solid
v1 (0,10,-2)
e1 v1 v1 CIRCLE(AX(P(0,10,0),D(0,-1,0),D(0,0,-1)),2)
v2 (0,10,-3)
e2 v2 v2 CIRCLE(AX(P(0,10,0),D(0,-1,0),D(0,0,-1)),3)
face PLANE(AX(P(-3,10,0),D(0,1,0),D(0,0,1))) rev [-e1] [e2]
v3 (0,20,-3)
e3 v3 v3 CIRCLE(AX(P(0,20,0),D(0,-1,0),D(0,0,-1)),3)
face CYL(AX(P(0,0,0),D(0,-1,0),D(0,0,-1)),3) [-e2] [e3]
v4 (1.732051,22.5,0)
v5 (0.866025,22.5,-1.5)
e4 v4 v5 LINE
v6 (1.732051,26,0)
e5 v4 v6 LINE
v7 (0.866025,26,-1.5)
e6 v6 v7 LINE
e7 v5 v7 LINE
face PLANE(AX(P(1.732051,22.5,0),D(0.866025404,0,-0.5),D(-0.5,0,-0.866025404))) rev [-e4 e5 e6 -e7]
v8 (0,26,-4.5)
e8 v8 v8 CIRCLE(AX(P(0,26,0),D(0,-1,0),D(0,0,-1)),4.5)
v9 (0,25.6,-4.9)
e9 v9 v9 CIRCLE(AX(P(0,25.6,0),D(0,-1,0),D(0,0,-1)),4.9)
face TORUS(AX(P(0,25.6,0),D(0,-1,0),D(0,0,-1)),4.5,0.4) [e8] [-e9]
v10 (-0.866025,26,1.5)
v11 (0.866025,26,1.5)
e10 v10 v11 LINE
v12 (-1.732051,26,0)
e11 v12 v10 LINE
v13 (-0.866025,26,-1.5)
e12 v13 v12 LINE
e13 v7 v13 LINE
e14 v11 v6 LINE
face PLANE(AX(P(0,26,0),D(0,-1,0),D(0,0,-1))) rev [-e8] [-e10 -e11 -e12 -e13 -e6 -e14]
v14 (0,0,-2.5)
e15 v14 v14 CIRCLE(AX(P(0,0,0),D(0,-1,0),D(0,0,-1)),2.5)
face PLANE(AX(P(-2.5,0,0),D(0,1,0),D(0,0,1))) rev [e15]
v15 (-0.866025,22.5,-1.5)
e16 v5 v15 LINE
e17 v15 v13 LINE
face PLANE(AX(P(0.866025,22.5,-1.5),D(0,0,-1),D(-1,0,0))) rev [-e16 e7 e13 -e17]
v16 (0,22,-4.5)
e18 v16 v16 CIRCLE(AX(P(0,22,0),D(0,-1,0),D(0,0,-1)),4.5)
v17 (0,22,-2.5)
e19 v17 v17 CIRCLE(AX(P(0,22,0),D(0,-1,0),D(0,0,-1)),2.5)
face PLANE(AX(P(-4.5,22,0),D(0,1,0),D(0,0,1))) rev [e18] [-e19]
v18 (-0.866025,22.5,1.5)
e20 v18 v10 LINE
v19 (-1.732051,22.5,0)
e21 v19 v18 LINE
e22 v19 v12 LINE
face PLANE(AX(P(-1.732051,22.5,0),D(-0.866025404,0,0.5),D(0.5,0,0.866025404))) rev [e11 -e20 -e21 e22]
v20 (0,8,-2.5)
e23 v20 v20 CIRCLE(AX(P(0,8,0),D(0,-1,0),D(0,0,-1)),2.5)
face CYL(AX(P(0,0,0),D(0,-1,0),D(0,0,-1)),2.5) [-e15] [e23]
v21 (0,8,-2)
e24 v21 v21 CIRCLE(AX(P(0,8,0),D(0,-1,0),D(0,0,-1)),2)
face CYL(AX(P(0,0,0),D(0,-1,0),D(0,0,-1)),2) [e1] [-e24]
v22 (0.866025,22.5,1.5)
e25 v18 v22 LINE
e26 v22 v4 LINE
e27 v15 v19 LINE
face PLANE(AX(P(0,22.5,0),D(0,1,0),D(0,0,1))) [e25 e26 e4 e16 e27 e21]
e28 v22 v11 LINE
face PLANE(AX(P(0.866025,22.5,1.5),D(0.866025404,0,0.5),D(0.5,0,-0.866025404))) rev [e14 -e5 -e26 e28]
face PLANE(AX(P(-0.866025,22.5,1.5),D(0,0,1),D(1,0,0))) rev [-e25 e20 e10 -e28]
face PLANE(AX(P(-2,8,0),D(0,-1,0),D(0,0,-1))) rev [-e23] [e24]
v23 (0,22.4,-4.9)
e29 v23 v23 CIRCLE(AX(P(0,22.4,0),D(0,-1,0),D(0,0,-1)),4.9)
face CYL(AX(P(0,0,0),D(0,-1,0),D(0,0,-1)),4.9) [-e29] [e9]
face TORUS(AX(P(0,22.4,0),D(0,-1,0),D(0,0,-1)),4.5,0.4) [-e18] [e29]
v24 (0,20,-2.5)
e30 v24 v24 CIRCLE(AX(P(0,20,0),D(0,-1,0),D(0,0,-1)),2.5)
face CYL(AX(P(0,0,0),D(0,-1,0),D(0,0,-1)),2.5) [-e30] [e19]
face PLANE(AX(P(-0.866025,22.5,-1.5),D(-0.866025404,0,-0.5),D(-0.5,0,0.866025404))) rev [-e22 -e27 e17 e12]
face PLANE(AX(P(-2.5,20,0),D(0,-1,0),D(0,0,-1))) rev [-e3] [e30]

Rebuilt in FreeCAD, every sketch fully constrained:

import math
import FreeCAD as App
import Part
import Sketcher

V = App.Vector
Q = App.Units.Quantity


def add_polygon(sketch, points):
    """Adds a closed chain of lines whose ends are joined by coincident constraints."""
    first, n = sketch.GeometryCount, len(points)
    for a, b in zip(points, points[1:] + points[:1]):
        sketch.addGeometry(Part.LineSegment(App.Vector(*a, 0), App.Vector(*b, 0)), False)
    for i in range(n):
        sketch.addConstraint(Sketcher.Constraint("Coincident", first + i, 2, first + (i + 1) % n, 1))

doc = App.newDocument("Part")
body = doc.addObject("PartDesign::Body", "Body")

# Sketch on XY plane
sketch1 = body.newObject("Sketcher::SketchObject", "Sketch")
sketch1.AttachmentSupport = (doc.getObject("XY_Plane"), [""])
sketch1.MapMode = "FlatFace"
sketch1.addGeometry([
    Part.LineSegment(V(0, 26, 0), V(-4.5, 26, 0)),  # 0
    Part.ArcOfCircle(Part.Circle(V(-4.5, 25.6, 0), V(0, 0, 1), 0.4), math.radians(90), math.radians(180)),  # 1
    Part.LineSegment(V(-4.9, 25.6, 0), V(-4.9, 22.4, 0)),  # 2
    Part.ArcOfCircle(Part.Circle(V(-4.5, 22.4, 0), V(0, 0, 1), 0.4), math.radians(-180), math.radians(-90)),  # 3
    Part.LineSegment(V(-4.5, 22, 0), V(-2.5, 22, 0)),  # 4
    Part.LineSegment(V(-2.5, 22, 0), V(-2.5, 20, 0)),  # 5
    Part.LineSegment(V(-2.5, 20, 0), V(-3, 20, 0)),  # 6
    Part.LineSegment(V(-3, 20, 0), V(-3, 10, 0)),  # 7
    Part.LineSegment(V(-3, 10, 0), V(-2, 10, 0)),  # 8
    Part.LineSegment(V(-2, 10, 0), V(-2, 8, 0)),  # 9
    Part.LineSegment(V(-2, 8, 0), V(-2.5, 8, 0)),  # 10
    Part.LineSegment(V(-2.5, 8, 0), V(-2.5, 0, 0)),  # 11
    Part.LineSegment(V(-2.5, 0, 0), V(0, 0, 0)),  # 12
    Part.LineSegment(V(0, 0, 0), V(0, 26, 0)),  # 13
], False)
sketch1.addConstraint([
    Sketcher.Constraint("Tangent", 0, 2, 1, 1),
    Sketcher.Constraint("Tangent", 1, 2, 2, 1),
    Sketcher.Constraint("Tangent", 2, 2, 3, 1),
    Sketcher.Constraint("Tangent", 3, 2, 4, 1),
    Sketcher.Constraint("Coincident", 4, 2, 5, 1),
    Sketcher.Constraint("Coincident", 5, 2, 6, 1),
    Sketcher.Constraint("Coincident", 6, 2, 7, 1),
    Sketcher.Constraint("Coincident", 7, 2, 8, 1),
    Sketcher.Constraint("Coincident", 8, 2, 9, 1),
    Sketcher.Constraint("Coincident", 9, 2, 10, 1),
    Sketcher.Constraint("Coincident", 10, 2, 11, 1),
    Sketcher.Constraint("Coincident", 11, 2, 12, 1),
    Sketcher.Constraint("Coincident", 12, 2, 13, 1),
    Sketcher.Constraint("Coincident", 13, 2, 0, 1),
    Sketcher.Constraint("Horizontal", 0),
    Sketcher.Constraint("Vertical", 2),
    Sketcher.Constraint("Horizontal", 4),
    Sketcher.Constraint("Vertical", 5),
    Sketcher.Constraint("Horizontal", 6),
    Sketcher.Constraint("Vertical", 7),
    Sketcher.Constraint("Horizontal", 8),
    Sketcher.Constraint("Vertical", 9),
    Sketcher.Constraint("Horizontal", 10),
    Sketcher.Constraint("Vertical", 11),
    Sketcher.Constraint("Horizontal", 12),
    Sketcher.Constraint("Vertical", 13),
    Sketcher.Constraint("Coincident", 12, 2, -1, 1),
    Sketcher.Constraint("Equal", 1, 3),
    Sketcher.Constraint("Vertical", 5, 2, 10, 2),
    Sketcher.Constraint("Equal", 6, 10),
    Sketcher.Constraint("Equal", 4, 5),
    Sketcher.Constraint("Equal", 5, 9),
    Sketcher.Constraint("Radius", 1, Q("0.4 mm")),
    Sketcher.Constraint("DistanceX", 4, 1, 4, 2, Q("2 mm")),
    Sketcher.Constraint("DistanceX", 8, 1, 8, 2, Q("1 mm")),
    Sketcher.Constraint("DistanceY", 7, 2, 7, 1, Q("10 mm")),
    Sketcher.Constraint("DistanceY", 11, 2, 11, 1, Q("8 mm")),
    Sketcher.Constraint("DistanceY", 13, 1, 13, 2, Q("26 mm")),
    Sketcher.Constraint("DistanceX", 0, 2, 0, 1, Q("4.5 mm")),
])
revolution = body.newObject("PartDesign::Revolution", "Revolution")
revolution.Profile = sketch1
revolution.ReferenceAxis = (sketch1, ["V_Axis"])
revolution.Angle = 360

# Sketch on XZ plane
sketch2 = body.newObject("Sketcher::SketchObject", "Sketch001")
sketch2.AttachmentSupport = (doc.getObject("XZ_Plane"), [""])
sketch2.MapMode = "FlatFace"
sketch2.AttachmentOffset = App.Placement(V(0, 0, -26), App.Rotation())
add_polygon(sketch2, [(0.866025, -1.5), (-0.866025, -1.5), (-1.732051, 0), (-0.866025, 1.5), (0.866025, 1.5), (1.732051, 0)])  # lines 0-5
sketch2.addConstraint([
    Sketcher.Constraint("Horizontal", 0),
    Sketcher.Constraint("Horizontal", 3),
    Sketcher.Constraint("Symmetric", 0, 2, 3, 2, -1, 1),
    Sketcher.Constraint("Symmetric", 1, 2, 4, 2, -1, 1),
    Sketcher.Constraint("PointOnObject", 1, 2, -1),
    Sketcher.Constraint("Parallel", 2, 5),
    Sketcher.Constraint("Vertical", 0, 2, 2, 2),
    Sketcher.Constraint("Angle", 1, Q("120 deg")),
    Sketcher.Constraint("DistanceY", 0, 2, 2, 2, Q("3 mm")),
    Sketcher.Constraint("DistanceX", 0, 2, 0, 1, Q("1.732051 mm")),
])
pocket1 = body.newObject("PartDesign::Pocket", "Pocket")
pocket1.Profile = sketch2
pocket1.Length = 3.5
pocket1.Reversed = True

doc.recompute()
